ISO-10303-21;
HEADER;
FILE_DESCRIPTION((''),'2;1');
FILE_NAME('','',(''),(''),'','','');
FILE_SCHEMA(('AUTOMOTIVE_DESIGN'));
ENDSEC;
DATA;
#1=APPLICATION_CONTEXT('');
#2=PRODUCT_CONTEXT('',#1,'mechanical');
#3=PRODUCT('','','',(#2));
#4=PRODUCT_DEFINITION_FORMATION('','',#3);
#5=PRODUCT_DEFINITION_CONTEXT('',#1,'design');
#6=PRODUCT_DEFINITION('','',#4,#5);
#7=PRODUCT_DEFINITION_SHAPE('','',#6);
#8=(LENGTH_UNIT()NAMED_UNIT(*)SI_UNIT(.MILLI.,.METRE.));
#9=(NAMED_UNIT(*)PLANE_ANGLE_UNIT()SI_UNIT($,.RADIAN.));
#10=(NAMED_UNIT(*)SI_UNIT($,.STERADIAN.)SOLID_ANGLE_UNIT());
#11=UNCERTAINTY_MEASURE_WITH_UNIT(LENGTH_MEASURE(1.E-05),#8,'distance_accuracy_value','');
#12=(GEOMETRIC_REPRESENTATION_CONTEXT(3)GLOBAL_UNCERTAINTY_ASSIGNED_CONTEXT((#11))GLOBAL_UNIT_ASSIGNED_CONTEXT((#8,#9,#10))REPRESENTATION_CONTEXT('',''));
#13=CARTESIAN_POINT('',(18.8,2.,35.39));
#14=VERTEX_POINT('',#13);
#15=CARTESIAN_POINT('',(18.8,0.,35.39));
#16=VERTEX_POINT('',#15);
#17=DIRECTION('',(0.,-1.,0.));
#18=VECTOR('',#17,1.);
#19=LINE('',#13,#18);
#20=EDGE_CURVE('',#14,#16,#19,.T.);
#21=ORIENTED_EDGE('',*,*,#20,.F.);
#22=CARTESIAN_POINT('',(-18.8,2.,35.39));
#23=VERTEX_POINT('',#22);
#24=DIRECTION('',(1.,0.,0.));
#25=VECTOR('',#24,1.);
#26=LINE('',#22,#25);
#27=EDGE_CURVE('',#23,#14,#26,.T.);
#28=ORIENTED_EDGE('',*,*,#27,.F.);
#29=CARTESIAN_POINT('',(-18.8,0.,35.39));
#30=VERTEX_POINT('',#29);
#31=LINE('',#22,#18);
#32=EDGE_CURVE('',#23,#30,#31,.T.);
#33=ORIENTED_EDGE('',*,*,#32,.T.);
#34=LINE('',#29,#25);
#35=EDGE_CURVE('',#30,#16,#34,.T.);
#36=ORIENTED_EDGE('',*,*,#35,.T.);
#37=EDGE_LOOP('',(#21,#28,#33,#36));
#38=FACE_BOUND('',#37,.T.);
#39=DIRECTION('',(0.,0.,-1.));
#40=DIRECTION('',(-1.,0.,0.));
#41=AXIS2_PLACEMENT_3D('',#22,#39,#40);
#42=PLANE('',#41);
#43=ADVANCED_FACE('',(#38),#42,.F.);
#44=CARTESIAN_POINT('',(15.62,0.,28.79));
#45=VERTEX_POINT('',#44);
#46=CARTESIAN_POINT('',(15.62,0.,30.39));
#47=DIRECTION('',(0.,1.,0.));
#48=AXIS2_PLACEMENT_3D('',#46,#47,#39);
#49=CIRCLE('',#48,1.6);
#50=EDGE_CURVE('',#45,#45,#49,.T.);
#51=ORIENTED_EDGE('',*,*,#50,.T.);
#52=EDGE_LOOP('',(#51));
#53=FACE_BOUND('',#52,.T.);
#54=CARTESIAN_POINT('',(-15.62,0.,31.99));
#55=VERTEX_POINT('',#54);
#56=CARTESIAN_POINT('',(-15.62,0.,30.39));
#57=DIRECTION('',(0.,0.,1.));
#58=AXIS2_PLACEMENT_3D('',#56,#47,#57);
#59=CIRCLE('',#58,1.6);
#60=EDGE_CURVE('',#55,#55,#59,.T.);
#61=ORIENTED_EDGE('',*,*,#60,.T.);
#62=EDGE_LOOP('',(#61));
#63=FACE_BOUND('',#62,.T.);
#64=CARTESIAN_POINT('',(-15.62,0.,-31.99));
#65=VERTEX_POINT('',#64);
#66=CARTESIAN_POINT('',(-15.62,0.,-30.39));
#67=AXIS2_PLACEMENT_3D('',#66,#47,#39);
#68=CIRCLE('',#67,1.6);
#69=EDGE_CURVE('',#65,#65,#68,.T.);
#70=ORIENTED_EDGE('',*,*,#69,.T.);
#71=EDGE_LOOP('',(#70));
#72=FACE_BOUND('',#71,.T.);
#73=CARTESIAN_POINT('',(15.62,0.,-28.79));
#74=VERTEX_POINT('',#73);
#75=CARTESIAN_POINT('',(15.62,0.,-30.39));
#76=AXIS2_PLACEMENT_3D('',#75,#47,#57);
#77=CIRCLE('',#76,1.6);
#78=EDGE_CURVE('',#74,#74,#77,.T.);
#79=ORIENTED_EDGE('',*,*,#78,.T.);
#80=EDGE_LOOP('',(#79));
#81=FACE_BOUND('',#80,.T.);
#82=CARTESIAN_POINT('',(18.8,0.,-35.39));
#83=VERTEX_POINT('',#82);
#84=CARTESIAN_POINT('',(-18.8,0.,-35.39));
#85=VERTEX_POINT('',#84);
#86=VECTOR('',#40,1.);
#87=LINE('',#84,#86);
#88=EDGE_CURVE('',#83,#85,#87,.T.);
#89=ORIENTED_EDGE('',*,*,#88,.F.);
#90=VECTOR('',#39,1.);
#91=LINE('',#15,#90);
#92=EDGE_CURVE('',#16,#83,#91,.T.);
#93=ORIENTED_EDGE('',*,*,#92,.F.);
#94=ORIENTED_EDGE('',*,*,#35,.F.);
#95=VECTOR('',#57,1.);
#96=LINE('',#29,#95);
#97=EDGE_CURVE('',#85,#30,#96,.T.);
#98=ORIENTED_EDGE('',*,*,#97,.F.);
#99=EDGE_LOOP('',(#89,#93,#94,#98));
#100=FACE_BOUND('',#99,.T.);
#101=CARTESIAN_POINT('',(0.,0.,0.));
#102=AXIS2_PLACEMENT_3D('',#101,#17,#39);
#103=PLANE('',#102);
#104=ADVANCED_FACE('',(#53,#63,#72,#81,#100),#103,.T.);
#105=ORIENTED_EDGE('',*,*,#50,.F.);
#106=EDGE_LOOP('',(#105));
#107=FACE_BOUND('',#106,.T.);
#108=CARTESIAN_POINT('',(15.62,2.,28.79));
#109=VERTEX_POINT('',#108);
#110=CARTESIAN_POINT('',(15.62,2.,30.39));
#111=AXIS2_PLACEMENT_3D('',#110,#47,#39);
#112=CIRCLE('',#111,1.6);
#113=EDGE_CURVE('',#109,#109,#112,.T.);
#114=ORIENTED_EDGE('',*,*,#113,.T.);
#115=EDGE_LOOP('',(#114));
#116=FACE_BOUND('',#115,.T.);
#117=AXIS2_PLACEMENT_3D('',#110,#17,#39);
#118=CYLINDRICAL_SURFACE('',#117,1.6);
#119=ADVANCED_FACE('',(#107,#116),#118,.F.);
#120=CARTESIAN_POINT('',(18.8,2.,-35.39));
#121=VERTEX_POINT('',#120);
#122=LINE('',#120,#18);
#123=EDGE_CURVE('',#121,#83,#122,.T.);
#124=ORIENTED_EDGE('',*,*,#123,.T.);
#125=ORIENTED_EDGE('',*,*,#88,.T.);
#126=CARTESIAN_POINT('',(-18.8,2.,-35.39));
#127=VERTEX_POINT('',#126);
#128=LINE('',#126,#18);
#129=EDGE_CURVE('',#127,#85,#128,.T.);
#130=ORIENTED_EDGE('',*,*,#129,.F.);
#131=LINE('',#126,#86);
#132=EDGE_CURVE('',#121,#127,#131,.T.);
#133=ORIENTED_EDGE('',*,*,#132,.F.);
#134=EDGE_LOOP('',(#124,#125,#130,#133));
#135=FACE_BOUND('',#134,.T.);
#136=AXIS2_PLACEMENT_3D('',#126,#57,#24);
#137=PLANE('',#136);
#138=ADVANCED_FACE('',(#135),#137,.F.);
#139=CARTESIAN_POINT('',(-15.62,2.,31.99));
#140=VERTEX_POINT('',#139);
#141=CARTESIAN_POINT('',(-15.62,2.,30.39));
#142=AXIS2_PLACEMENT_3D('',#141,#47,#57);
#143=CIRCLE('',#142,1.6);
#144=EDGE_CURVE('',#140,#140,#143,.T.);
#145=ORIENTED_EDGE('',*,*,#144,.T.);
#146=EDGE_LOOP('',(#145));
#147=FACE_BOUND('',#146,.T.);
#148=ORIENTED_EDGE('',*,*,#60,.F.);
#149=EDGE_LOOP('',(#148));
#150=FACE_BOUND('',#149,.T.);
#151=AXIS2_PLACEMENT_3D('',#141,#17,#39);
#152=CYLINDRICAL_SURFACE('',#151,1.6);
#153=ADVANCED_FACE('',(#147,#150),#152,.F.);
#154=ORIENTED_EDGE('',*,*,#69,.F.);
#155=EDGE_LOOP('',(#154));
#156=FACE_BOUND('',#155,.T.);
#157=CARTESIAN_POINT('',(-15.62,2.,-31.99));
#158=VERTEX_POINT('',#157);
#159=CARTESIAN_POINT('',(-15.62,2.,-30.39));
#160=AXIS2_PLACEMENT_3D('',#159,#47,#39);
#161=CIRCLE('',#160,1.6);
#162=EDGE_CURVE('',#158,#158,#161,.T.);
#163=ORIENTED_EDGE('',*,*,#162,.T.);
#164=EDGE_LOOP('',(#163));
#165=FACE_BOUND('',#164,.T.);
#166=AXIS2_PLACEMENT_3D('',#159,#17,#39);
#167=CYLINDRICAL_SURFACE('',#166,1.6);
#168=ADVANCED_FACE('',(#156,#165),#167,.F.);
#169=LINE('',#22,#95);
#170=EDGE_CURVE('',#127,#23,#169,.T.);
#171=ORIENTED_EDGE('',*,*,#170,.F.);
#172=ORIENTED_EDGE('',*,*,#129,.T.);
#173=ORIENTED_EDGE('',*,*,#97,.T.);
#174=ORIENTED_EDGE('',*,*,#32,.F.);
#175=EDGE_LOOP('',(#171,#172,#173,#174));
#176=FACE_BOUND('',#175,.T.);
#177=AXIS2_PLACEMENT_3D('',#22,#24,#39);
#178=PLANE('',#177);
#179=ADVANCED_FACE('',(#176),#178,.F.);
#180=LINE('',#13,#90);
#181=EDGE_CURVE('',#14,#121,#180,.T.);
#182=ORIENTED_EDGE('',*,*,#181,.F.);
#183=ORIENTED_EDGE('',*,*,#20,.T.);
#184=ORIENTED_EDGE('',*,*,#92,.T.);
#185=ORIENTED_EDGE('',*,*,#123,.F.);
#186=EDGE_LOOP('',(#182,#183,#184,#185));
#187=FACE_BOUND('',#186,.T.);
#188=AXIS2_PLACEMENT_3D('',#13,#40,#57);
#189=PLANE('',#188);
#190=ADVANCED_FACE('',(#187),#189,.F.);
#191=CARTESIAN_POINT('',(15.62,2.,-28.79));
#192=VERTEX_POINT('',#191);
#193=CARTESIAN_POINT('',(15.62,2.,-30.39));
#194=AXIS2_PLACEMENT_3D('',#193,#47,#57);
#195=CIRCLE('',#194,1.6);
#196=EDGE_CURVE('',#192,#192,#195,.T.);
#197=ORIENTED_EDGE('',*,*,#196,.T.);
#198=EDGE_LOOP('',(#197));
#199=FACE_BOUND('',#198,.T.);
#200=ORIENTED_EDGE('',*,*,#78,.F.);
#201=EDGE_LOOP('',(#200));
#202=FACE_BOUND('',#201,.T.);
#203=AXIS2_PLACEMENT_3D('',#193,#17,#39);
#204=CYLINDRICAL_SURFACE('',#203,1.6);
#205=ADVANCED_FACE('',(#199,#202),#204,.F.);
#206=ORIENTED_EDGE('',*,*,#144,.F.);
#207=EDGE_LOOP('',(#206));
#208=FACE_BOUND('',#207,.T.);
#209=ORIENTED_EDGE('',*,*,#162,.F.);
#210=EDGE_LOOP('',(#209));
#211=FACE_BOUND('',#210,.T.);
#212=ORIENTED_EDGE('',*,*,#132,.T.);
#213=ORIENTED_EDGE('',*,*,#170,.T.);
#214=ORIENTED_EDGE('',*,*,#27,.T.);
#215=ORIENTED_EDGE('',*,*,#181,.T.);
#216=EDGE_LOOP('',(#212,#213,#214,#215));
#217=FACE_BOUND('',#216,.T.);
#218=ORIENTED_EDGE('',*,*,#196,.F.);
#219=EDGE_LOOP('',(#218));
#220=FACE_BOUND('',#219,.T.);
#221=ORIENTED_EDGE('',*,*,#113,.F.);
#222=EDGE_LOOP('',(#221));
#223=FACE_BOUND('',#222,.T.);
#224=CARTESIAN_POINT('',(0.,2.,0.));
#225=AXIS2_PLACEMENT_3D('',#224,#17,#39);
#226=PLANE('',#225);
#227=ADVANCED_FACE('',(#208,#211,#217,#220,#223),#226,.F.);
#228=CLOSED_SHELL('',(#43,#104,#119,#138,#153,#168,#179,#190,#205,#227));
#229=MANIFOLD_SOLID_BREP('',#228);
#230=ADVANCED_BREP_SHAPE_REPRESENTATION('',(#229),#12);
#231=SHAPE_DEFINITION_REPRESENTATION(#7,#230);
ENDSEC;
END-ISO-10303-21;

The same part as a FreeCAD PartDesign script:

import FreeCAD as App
import Part
import Sketcher
Q = App.Units.Quantity

doc = App.newDocument("Part")
params = doc.addObject("Spreadsheet::Sheet", "Params")
for row, (alias, value) in enumerate([
    ("sketch1_diameter", "3.2 mm"),
    ("sketch1_width", "37.6 mm"),
    ("sketch1_height", "70.78 mm"),
    ("pad1_length", "2 mm"),
], start=1):
    params.set(f"A{row}", alias)
    params.set(f"B{row}", "=" + value)
    params.setAlias(f"B{row}", alias)

body = doc.addObject("PartDesign::Body", "Body")

sketch1 = body.newObject("Sketcher::SketchObject", "Sketch")
sketch1.AttachmentSupport = (doc.getObject("XZ_Plane"), [""])
sketch1.MapMode = "FlatFace"
sketch1.addGeometry(Part.LineSegment(App.Vector(-18.8, -35.4, 0), App.Vector(-18.8, 35.4, 0)), False)
sketch1.addGeometry(Part.LineSegment(App.Vector(-18.8, 35.4, 0), App.Vector(18.8, 35.4, 0)), False)
sketch1.addGeometry(Part.LineSegment(App.Vector(18.8, 35.4, 0), App.Vector(18.8, -35.4, 0)), False)
sketch1.addGeometry(Part.LineSegment(App.Vector(18.8, -35.4, 0), App.Vector(-18.8, -35.4, 0)), False)
sketch1.addGeometry(Part.Circle(App.Vector(-15.6, 30.4, 0), App.Vector(0, 0, 1), 1.6), False)
sketch1.addGeometry(Part.Circle(App.Vector(15.6, 30.4, 0), App.Vector(0, 0, 1), 1.6), False)
sketch1.addGeometry(Part.Circle(App.Vector(-15.6, -30.4, 0), App.Vector(0, 0, 1), 1.6), False)
sketch1.addGeometry(Part.Circle(App.Vector(15.6, -30.4, 0), App.Vector(0, 0, 1), 1.6), False)
sketch1.addConstraint(Sketcher.Constraint("Coincident", 0, 2, 1, 1))
sketch1.addConstraint(Sketcher.Constraint("Coincident", 1, 2, 2, 1))
sketch1.addConstraint(Sketcher.Constraint("Coincident", 2, 2, 3, 1))
sketch1.addConstraint(Sketcher.Constraint("Coincident", 3, 2, 0, 1))
sketch1.addConstraint(Sketcher.Constraint("Vertical", 0))
sketch1.addConstraint(Sketcher.Constraint("Horizontal", 1))
sketch1.addConstraint(Sketcher.Constraint("Vertical", 2))
sketch1.addConstraint(Sketcher.Constraint("Horizontal", 3))
sketch1.addConstraint(Sketcher.Constraint("Equal", 4, 5))
sketch1.addConstraint(Sketcher.Constraint("Equal", 5, 6))
sketch1.addConstraint(Sketcher.Constraint("Equal", 6, 7))
sketch1.addConstraint(Sketcher.Constraint("Symmetric", 5, 3, 6, 3, -1, 1))
sketch1.addConstraint(Sketcher.Constraint("Symmetric", 4, 3, 7, 3, -1, 1))
sketch1.addConstraint(Sketcher.Constraint("Symmetric", 0, 2, 2, 2, -1, 1))
sketch1.addConstraint(Sketcher.Constraint("Symmetric", 4, 3, 5, 3, -2))
sketch1.addConstraint(Sketcher.Constraint("Diameter", 4, Q("3.2 mm")))
sketch1.addConstraint(Sketcher.Constraint("DistanceX", 1, 1, 1, 2, Q("37.6 mm")))
sketch1.addConstraint(Sketcher.Constraint("DistanceY", 4, 3, 0, 2, Q("5 mm")))
sketch1.addConstraint(Sketcher.Constraint("DistanceY", 0, 1, 0, 2, Q("70.78 mm")))
sketch1.addConstraint(Sketcher.Constraint("DistanceX", 4, 3, -1, 1, Q("15.62 mm")))
sketch1.setExpression("Constraints[15]", "Params.sketch1_diameter")
sketch1.setExpression("Constraints[16]", "Params.sketch1_width")
sketch1.setExpression("Constraints[18]", "Params.sketch1_height")
pad1 = body.newObject("PartDesign::Pad", "Pad")
pad1.Profile = sketch1
pad1.setExpression("Length", "Params.pad1_length")
pad1.Reversed = True

doc.recompute()
